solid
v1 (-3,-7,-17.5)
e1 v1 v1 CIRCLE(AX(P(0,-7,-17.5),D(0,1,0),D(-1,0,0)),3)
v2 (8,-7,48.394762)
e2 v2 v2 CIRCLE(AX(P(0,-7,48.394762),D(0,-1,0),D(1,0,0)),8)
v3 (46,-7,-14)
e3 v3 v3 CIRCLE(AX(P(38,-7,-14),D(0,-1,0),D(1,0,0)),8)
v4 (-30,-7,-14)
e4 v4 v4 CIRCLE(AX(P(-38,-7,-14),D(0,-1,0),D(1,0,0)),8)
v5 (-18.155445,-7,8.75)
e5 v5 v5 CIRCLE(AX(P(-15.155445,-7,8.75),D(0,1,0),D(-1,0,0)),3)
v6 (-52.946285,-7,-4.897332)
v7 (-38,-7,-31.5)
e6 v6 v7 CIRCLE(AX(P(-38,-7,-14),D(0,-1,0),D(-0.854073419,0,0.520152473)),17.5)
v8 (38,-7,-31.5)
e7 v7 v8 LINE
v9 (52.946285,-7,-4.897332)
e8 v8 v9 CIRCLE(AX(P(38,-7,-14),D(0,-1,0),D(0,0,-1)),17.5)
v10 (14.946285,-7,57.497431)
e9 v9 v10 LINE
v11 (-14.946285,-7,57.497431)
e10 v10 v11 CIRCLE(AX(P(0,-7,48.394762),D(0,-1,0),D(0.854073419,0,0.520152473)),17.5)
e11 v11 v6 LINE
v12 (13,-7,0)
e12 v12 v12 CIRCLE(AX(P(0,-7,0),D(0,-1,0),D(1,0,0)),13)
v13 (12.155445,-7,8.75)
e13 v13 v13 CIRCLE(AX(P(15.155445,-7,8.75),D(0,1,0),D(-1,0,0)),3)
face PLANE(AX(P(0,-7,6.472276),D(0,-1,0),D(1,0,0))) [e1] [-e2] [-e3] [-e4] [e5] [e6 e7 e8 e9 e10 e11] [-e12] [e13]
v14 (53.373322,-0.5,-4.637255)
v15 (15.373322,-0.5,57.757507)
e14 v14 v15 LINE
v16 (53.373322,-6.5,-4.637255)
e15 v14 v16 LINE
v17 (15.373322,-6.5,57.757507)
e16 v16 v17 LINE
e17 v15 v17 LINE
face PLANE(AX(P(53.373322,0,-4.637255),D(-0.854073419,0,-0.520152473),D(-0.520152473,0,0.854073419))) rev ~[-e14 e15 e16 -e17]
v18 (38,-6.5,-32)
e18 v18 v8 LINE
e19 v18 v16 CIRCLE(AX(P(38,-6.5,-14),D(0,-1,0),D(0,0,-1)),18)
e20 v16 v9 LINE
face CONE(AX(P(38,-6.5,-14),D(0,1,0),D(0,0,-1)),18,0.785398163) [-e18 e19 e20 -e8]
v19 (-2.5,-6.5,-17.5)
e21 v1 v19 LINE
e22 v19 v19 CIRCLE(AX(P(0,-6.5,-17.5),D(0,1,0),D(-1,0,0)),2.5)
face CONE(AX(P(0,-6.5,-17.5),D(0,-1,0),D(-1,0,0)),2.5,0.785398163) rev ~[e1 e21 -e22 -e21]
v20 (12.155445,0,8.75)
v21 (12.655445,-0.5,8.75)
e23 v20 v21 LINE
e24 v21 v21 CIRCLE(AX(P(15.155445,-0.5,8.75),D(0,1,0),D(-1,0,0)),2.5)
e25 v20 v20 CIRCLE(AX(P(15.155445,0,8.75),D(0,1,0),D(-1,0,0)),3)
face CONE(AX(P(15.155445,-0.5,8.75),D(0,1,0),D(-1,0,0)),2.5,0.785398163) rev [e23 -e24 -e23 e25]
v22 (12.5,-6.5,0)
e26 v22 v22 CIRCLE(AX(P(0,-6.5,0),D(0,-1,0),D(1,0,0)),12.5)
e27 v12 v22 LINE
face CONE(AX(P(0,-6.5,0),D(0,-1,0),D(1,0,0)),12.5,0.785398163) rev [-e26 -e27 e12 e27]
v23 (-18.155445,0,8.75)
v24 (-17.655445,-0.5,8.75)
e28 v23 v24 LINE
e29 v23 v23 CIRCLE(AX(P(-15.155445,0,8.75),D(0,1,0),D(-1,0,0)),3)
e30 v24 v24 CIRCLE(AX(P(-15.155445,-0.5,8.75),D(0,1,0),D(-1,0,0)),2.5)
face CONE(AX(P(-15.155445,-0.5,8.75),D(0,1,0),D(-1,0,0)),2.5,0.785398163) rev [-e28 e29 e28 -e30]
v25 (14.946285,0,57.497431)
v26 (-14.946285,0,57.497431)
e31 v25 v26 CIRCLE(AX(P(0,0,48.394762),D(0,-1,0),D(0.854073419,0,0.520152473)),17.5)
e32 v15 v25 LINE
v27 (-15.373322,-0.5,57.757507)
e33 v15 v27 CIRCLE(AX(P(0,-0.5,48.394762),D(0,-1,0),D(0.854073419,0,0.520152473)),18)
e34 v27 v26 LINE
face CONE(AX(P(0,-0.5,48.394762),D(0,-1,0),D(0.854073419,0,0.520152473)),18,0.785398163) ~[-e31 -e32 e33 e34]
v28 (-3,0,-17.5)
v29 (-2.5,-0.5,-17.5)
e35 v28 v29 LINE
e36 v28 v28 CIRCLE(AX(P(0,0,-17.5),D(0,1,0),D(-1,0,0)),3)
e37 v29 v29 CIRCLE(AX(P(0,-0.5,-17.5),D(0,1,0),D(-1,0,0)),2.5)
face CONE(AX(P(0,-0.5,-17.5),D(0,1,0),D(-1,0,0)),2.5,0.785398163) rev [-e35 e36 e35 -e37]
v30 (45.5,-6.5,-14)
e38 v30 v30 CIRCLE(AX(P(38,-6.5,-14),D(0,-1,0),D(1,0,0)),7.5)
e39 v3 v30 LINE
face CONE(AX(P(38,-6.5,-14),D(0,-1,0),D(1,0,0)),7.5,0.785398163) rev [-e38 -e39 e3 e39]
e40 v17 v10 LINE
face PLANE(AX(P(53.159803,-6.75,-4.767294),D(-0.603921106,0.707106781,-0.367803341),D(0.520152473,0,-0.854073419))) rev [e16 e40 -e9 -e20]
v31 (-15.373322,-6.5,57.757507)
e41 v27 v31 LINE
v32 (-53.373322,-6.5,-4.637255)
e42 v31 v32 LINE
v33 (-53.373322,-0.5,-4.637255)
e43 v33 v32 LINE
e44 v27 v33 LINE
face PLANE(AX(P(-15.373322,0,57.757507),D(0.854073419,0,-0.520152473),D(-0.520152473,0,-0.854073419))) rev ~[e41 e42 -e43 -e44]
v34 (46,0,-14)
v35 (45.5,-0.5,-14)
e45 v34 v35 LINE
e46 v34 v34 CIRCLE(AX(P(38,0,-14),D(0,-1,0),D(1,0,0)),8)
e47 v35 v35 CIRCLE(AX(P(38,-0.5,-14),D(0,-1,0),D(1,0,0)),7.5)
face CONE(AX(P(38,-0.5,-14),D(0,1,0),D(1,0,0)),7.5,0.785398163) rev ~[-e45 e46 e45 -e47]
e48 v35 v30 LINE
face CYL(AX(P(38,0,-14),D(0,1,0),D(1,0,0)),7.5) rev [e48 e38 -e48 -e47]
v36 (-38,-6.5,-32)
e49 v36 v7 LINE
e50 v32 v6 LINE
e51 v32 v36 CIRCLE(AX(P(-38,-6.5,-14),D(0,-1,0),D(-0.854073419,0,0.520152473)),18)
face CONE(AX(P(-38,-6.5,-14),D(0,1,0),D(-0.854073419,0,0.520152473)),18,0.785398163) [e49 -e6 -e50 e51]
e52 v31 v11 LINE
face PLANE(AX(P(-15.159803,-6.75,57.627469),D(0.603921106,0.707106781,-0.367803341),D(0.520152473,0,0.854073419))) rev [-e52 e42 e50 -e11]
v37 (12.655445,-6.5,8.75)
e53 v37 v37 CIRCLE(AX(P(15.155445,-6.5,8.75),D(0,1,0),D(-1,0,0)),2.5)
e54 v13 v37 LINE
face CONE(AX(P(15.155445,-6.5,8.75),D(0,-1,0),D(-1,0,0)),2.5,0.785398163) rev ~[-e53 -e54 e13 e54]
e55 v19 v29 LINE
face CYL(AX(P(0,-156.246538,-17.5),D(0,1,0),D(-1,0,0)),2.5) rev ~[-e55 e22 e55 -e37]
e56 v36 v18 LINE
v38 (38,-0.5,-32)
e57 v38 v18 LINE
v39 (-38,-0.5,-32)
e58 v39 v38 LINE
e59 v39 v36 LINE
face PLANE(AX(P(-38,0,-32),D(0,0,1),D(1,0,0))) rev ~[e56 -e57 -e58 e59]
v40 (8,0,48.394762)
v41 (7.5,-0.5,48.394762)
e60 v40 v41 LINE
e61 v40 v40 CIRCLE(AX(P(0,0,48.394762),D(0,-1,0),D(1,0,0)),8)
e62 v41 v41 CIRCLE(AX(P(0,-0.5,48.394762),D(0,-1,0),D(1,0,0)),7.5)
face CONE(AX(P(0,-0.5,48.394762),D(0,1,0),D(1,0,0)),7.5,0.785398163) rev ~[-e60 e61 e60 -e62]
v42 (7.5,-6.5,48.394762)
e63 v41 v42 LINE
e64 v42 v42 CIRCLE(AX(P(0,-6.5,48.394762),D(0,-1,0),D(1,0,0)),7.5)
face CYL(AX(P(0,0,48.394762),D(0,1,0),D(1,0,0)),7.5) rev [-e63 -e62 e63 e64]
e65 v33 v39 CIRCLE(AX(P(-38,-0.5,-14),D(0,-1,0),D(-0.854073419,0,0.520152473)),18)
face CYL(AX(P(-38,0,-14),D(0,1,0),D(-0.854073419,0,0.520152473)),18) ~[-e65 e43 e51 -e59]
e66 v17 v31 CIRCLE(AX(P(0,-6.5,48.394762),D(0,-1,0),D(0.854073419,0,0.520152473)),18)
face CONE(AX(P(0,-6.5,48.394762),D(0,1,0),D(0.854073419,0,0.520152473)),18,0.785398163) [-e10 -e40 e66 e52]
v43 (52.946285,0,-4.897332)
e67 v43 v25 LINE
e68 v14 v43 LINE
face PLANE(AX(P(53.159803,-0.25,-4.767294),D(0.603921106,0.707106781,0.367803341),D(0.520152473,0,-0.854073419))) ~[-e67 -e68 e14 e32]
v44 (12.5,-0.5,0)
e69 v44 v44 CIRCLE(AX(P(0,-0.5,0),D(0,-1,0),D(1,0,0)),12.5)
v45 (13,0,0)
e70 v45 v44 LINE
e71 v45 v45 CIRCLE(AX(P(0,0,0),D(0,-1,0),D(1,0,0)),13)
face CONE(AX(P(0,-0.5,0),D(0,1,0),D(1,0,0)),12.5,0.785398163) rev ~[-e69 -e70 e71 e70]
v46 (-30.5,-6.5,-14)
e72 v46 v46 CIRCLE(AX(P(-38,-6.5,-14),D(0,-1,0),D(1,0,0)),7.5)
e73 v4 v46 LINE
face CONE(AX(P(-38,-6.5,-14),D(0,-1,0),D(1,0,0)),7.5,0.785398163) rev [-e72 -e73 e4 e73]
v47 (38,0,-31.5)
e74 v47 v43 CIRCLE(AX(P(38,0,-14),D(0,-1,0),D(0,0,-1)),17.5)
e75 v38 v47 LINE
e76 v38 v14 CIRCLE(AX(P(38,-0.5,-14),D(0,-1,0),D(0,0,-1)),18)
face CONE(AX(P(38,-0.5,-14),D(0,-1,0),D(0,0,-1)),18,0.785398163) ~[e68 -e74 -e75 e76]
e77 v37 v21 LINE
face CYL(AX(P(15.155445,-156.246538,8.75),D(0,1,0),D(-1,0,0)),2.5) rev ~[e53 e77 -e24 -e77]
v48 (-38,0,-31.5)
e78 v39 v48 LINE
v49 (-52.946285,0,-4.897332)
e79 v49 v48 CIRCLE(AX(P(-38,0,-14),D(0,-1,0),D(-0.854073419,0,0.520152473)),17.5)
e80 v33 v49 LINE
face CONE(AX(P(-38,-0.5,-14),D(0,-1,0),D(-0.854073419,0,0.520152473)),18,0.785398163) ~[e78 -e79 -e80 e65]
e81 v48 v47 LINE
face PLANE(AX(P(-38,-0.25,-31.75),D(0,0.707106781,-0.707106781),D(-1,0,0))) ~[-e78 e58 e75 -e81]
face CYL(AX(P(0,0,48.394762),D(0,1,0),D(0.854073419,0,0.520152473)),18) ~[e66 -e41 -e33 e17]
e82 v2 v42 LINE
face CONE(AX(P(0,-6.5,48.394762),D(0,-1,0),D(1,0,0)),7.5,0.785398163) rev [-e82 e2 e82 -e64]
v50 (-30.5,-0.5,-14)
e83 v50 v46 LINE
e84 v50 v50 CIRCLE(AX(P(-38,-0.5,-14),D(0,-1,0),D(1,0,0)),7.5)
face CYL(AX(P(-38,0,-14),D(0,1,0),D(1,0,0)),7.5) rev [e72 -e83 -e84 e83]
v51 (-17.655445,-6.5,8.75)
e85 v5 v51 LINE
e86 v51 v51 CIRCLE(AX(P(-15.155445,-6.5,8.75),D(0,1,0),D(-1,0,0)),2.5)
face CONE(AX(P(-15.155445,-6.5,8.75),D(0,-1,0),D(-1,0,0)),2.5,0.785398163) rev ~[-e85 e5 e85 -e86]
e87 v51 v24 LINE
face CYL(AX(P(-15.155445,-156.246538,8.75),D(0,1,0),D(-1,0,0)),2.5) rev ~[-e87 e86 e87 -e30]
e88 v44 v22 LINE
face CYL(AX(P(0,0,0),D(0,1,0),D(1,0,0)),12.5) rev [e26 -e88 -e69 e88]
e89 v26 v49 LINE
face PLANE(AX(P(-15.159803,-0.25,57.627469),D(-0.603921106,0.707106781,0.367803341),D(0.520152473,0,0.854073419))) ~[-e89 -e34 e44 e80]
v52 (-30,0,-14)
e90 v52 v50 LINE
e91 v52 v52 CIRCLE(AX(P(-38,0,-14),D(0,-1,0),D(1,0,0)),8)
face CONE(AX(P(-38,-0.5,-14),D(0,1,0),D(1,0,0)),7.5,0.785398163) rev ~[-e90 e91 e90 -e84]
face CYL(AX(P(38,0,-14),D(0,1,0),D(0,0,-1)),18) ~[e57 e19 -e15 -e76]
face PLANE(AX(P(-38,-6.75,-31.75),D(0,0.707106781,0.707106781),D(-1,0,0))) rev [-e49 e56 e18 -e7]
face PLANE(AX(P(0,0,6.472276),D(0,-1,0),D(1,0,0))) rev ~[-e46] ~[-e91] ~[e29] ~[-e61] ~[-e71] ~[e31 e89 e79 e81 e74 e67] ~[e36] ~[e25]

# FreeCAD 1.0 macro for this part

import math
import FreeCAD as App
import Part
import Sketcher

V = App.Vector


def edges_at(feature, points):
    """Names of the edges that pass closest to the given points."""
    edges = feature.Shape.Edges
    near = lambda p: min(range(len(edges)), key=lambda i: edges[i].distToShape(Part.Vertex(*p))[0])
    return sorted({f"Edge{near(p) + 1}" for p in points})

doc = App.newDocument("Part")
body = doc.addObject("PartDesign::Body", "Body")

# Sketch on XZ plane
sketch1 = body.newObject("Sketcher::SketchObject", "Sketch")
sketch1.AttachmentSupport = (doc.getObject("XZ_Plane"), [""])
sketch1.MapMode = "FlatFace"
sketch1.addGeometry([
    Part.ArcOfCircle(Part.Circle(V(-38, -14, 0), V(0, 0, 1), 18), math.radians(149), math.radians(270)),  # 0
    Part.LineSegment(V(-38, -32, 0), V(38, -32, 0)),  # 1
    Part.ArcOfCircle(Part.Circle(V(38, -14, 0), V(0, 0, 1), 18), math.radians(-90), math.radians(31)),  # 2
    Part.LineSegment(V(53, -5, 0), V(15, 58, 0)),  # 3
    Part.ArcOfCircle(Part.Circle(V(0, 48, 0), V(0, 0, 1), 18), math.radians(31), math.radians(149)),  # 4
    Part.LineSegment(V(-15, 58, 0), V(-53, -5, 0)),  # 5
    Part.Circle(V(-38, -14, 0), V(0, 0, 1), 8),  # 6
    Part.Circle(V(38, -14, 0), V(0, 0, 1), 8),  # 7
    Part.Circle(V(0, 0, 0), V(0, 0, 1), 12),  # 8
    Part.Circle(V(0, 48, 0), V(0, 0, 1), 8),  # 9
], False)
sketch1.addConstraint([
    Sketcher.Constraint("Tangent", 0, 2, 1, 1),
    Sketcher.Constraint("Tangent", 1, 2, 2, 1),
    Sketcher.Constraint("Tangent", 2, 2, 3, 1),
    Sketcher.Constraint("Tangent", 3, 2, 4, 1),
    Sketcher.Constraint("Tangent", 4, 2, 5, 1),
    Sketcher.Constraint("Tangent", 5, 2, 0, 1),
    Sketcher.Constraint("Horizontal", 1),
    Sketcher.Constraint("Coincident", 8, 3, -1, 1),
    Sketcher.Constraint("Coincident", 6, 3, 0, 3),
    Sketcher.Constraint("Coincident", 7, 3, 2, 3),
    Sketcher.Constraint("Coincident", 9, 3, 4, 3),
    Sketcher.Constraint("Equal", 0, 2),
    Sketcher.Constraint("Equal", 2, 4),
    Sketcher.Constraint("Equal", 6, 7),
    Sketcher.Constraint("Equal", 7, 9),
    Sketcher.Constraint("Symmetric", 3, 2, 4, 2, -2),
    Sketcher.Constraint("Diameter", 6, 15.0),
    Sketcher.Constraint("Diameter", 8, 25.0),
    Sketcher.Constraint("Radius", 0, 18.0),
    Sketcher.Constraint("DistanceX", 1, 1, 1, 2, 76.0),
    Sketcher.Constraint("DistanceY", 0, 3, -1, 1, 14.0),
    Sketcher.Constraint("Distance", 3, 73.055502),
])
pad1 = body.newObject("PartDesign::Pad", "Pad")
pad1.Profile = sketch1
pad1.Length = 7

# Sketch on XZ plane
sketch2 = body.newObject("Sketcher::SketchObject", "Sketch001")
sketch2.AttachmentSupport = (doc.getObject("XZ_Plane"), [""])
sketch2.MapMode = "FlatFace"
sketch2.AttachmentOffset = App.Placement(V(0, 0, 7), App.Rotation())
sketch2.addGeometry([
    Part.Circle(V(-15.2, 8.8, 0), V(0, 0, 1), 2.5),
    Part.Circle(V(15.2, 8.8, 0), V(0, 0, 1), 2.5),
    Part.Circle(V(0, -17.5, 0), V(0, 0, 1), 2.5),
], False)
sketch2.addConstraint([
    Sketcher.Constraint("Equal", 0, 1),
    Sketcher.Constraint("Equal", 1, 2),
    Sketcher.Constraint("Symmetric", 0, 3, 1, 3, -2),
    Sketcher.Constraint("PointOnObject", 2, 3, -2),
    Sketcher.Constraint("Diameter", 0, 5.0),
    Sketcher.Constraint("DistanceY", 2, 3, -1, 1, 17.5),
    Sketcher.Constraint("DistanceY", -1, 1, 0, 3, 8.75),
    Sketcher.Constraint("DistanceX", 0, 3, 1, 3, 30.310889),
])
doc.recompute()
hole = body.newObject("PartDesign::Hole", "Hole")
hole.Profile = sketch2
hole.ThreadType = "None"
hole.Diameter = 5
hole.DepthType = "ThroughAll"
doc.recompute()

chamfer = body.newObject("PartDesign::Chamfer", "Chamfer")
chamfer.Base = (hole, edges_at(hole, [
    (-53.693, -7, -22.817),
    (-34.373, -7, 26.56),
    (0, -7, -32),
    (0, -7, 66.395),
    (53.693, -7, -22.817),
    (34.373, -7, 26.56),
    (-45.5, -7, -14),
    (-12.655, -7, 8.75),
    (2.5, -7, -17.5),
    (30.5, -7, -14),
    (-12.5, -7, 0),
    (17.655, -7, 8.75),
    (-7.5, -7, 48.395),
    (-53.693, 0, -22.817),
    (-34.373, 0, 26.56),
    (0, 0, -32),
    (0, 0, 66.395),
    (53.693, 0, -22.817),
    (34.373, 0, 26.56),
    (-45.5, 0, -14),
    (-12.655, 0, 8.75),
    (2.5, 0, -17.5),
    (30.5, 0, -14),
    (-12.5, 0, 0),
    (17.655, 0, 8.75),
    (-7.5, 0, 48.395),
]))
chamfer.Size = 0.5

doc.recompute()
